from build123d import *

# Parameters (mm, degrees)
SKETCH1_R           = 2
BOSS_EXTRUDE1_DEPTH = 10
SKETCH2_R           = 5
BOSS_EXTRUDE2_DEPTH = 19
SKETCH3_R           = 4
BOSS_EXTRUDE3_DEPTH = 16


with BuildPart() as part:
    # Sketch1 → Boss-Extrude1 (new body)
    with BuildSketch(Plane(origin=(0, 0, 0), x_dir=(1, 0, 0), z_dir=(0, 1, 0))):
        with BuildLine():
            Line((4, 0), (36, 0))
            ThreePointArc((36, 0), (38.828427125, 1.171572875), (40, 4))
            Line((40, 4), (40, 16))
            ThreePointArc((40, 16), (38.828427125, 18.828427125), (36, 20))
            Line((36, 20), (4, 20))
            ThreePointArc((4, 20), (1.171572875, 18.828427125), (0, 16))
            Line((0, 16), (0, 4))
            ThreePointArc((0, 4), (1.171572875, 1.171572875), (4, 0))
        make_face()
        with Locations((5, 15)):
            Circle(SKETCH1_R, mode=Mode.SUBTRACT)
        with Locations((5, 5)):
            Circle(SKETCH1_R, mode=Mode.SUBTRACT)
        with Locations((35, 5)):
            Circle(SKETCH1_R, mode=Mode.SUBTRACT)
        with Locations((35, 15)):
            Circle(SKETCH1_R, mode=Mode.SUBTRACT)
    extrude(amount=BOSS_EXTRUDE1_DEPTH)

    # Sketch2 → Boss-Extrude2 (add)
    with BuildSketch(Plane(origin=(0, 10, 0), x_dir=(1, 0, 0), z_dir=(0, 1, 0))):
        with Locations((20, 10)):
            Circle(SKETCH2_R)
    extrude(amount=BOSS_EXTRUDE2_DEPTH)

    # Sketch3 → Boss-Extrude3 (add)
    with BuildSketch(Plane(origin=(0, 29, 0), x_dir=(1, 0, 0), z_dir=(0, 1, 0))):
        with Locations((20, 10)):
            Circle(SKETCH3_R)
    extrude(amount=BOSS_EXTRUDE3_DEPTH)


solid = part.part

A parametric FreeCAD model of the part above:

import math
import FreeCAD as App
import Part
import Sketcher

doc = App.newDocument("Part")
body = doc.addObject("PartDesign::Body", "Body")

sketch1 = body.newObject("Sketcher::SketchObject", "Sketch")
sketch1.AttachmentSupport = (doc.getObject("XZ_Plane"), [""])
sketch1.MapMode = "FlatFace"
sketch1.addGeometry([
    Part.LineSegment(App.Vector(4, 0, 0), App.Vector(36, 0, 0)),
    Part.ArcOfCircle(Part.Circle(App.Vector(36, -4, 0), App.Vector(0, 0, 1), 4), math.radians(0), math.radians(90)),
    Part.LineSegment(App.Vector(40, -4, 0), App.Vector(40, -16, 0)),
    Part.ArcOfCircle(Part.Circle(App.Vector(36, -16, 0), App.Vector(0, 0, 1), 4), math.radians(-90), math.radians(0)),
    Part.LineSegment(App.Vector(36, -20, 0), App.Vector(4, -20, 0)),
    Part.ArcOfCircle(Part.Circle(App.Vector(4, -16, 0), App.Vector(0, 0, 1), 4), math.radians(180), math.radians(270)),
    Part.LineSegment(App.Vector(0, -16, 0), App.Vector(0, -4, 0)),
    Part.ArcOfCircle(Part.Circle(App.Vector(4, -4, 0), App.Vector(0, 0, 1), 4), math.radians(90), math.radians(180)),
    Part.Circle(App.Vector(5, -5, 0), App.Vector(0, 0, 1), 2),
    Part.Circle(App.Vector(35, -5, 0), App.Vector(0, 0, 1), 2),
    Part.Circle(App.Vector(5, -15, 0), App.Vector(0, 0, 1), 2),
    Part.Circle(App.Vector(35, -15, 0), App.Vector(0, 0, 1), 2),
], False)
sketch1.addConstraint([
    Sketcher.Constraint("Tangent", 0, 2, 1, 2),
    Sketcher.Constraint("Tangent", 1, 1, 2, 1),
    Sketcher.Constraint("Tangent", 2, 2, 3, 2),
    Sketcher.Constraint("Tangent", 3, 1, 4, 1),
    Sketcher.Constraint("Tangent", 4, 2, 5, 2),
    Sketcher.Constraint("Tangent", 5, 1, 6, 1),
    Sketcher.Constraint("Tangent", 6, 2, 7, 2),
    Sketcher.Constraint("Tangent", 7, 1, 0, 1),
    Sketcher.Constraint("Horizontal", 0),
    Sketcher.Constraint("Vertical", 2),
    Sketcher.Constraint("Horizontal", 4),
    Sketcher.Constraint("Vertical", 6),
    Sketcher.Constraint("Equal", 1, 3),
    Sketcher.Constraint("Equal", 3, 5),
    Sketcher.Constraint("Equal", 5, 7),
    Sketcher.Constraint("Equal", 8, 9),
    Sketcher.Constraint("Equal", 9, 10),
    Sketcher.Constraint("Equal", 10, 11),
    Sketcher.Constraint("PointOnObject", 0, 2, -1),
    Sketcher.Constraint("PointOnObject", 5, 1, -2),
    Sketcher.Constraint("Horizontal", 8, 3, 9, 3),
    Sketcher.Constraint("Horizontal", 10, 3, 11, 3),
    Sketcher.Constraint("Vertical", 8, 3, 10, 3),
    Sketcher.Constraint("Vertical", 9, 3, 11, 3),
    Sketcher.Constraint("Diameter", 8, 4.0),
    Sketcher.Constraint("Radius", 1, 4.0),
    Sketcher.Constraint("DistanceX", 0, 1, 0, 2, 32.0),
    Sketcher.Constraint("DistanceY", 2, 2, 2, 1, 12.0),
    Sketcher.Constraint("DistanceX", -1, 1, 8, 3, 5.0),
    Sketcher.Constraint("DistanceY", 8, 3, -1, 1, 5.0),
    Sketcher.Constraint("DistanceX", -1, 1, 9, 3, 35.0),
    Sketcher.Constraint("DistanceY", 10, 3, -1, 1, 15.0),
])
pad1 = body.newObject("PartDesign::Pad", "Pad")
pad1.Profile = sketch1
pad1.Length = 10
pad1.Reversed = True

sketch2 = body.newObject("Sketcher::SketchObject", "Sketch001")
sketch2.AttachmentSupport = (doc.getObject("XZ_Plane"), [""])
sketch2.MapMode = "FlatFace"
sketch2.AttachmentOffset = App.Placement(App.Vector(0, 0, -10), App.Rotation())
sketch2.addGeometry(Part.Circle(App.Vector(20, -10, 0), App.Vector(0, 0, 1), 5), False)
sketch2.addConstraint([
    Sketcher.Constraint("Diameter", 0, 10.0),
    Sketcher.Constraint("DistanceX", -1, 1, 0, 3, 20.0),
    Sketcher.Constraint("DistanceY", 0, 3, -1, 1, 10.0),
])
pad2 = body.newObject("PartDesign::Pad", "Pad001")
pad2.Profile = sketch2
pad2.Length = 19
pad2.Reversed = True

sketch3 = body.newObject("Sketcher::SketchObject", "Sketch002")
sketch3.AttachmentSupport = (doc.getObject("XZ_Plane"), [""])
sketch3.MapMode = "FlatFace"
sketch3.AttachmentOffset = App.Placement(App.Vector(0, 0, -29), App.Rotation())
sketch3.addGeometry(Part.Circle(App.Vector(20, -10, 0), App.Vector(0, 0, 1), 4), False)
sketch3.addConstraint([
    Sketcher.Constraint("Diameter", 0, 8.0),
    Sketcher.Constraint("DistanceX", -1, 1, 0, 3, 20.0),
    Sketcher.Constraint("DistanceY", 0, 3, -1, 1, 10.0),
])
pad3 = body.newObject("PartDesign::Pad", "Pad002")
pad3.Profile = sketch3
pad3.Length = 16
pad3.Reversed = True

doc.recompute()
